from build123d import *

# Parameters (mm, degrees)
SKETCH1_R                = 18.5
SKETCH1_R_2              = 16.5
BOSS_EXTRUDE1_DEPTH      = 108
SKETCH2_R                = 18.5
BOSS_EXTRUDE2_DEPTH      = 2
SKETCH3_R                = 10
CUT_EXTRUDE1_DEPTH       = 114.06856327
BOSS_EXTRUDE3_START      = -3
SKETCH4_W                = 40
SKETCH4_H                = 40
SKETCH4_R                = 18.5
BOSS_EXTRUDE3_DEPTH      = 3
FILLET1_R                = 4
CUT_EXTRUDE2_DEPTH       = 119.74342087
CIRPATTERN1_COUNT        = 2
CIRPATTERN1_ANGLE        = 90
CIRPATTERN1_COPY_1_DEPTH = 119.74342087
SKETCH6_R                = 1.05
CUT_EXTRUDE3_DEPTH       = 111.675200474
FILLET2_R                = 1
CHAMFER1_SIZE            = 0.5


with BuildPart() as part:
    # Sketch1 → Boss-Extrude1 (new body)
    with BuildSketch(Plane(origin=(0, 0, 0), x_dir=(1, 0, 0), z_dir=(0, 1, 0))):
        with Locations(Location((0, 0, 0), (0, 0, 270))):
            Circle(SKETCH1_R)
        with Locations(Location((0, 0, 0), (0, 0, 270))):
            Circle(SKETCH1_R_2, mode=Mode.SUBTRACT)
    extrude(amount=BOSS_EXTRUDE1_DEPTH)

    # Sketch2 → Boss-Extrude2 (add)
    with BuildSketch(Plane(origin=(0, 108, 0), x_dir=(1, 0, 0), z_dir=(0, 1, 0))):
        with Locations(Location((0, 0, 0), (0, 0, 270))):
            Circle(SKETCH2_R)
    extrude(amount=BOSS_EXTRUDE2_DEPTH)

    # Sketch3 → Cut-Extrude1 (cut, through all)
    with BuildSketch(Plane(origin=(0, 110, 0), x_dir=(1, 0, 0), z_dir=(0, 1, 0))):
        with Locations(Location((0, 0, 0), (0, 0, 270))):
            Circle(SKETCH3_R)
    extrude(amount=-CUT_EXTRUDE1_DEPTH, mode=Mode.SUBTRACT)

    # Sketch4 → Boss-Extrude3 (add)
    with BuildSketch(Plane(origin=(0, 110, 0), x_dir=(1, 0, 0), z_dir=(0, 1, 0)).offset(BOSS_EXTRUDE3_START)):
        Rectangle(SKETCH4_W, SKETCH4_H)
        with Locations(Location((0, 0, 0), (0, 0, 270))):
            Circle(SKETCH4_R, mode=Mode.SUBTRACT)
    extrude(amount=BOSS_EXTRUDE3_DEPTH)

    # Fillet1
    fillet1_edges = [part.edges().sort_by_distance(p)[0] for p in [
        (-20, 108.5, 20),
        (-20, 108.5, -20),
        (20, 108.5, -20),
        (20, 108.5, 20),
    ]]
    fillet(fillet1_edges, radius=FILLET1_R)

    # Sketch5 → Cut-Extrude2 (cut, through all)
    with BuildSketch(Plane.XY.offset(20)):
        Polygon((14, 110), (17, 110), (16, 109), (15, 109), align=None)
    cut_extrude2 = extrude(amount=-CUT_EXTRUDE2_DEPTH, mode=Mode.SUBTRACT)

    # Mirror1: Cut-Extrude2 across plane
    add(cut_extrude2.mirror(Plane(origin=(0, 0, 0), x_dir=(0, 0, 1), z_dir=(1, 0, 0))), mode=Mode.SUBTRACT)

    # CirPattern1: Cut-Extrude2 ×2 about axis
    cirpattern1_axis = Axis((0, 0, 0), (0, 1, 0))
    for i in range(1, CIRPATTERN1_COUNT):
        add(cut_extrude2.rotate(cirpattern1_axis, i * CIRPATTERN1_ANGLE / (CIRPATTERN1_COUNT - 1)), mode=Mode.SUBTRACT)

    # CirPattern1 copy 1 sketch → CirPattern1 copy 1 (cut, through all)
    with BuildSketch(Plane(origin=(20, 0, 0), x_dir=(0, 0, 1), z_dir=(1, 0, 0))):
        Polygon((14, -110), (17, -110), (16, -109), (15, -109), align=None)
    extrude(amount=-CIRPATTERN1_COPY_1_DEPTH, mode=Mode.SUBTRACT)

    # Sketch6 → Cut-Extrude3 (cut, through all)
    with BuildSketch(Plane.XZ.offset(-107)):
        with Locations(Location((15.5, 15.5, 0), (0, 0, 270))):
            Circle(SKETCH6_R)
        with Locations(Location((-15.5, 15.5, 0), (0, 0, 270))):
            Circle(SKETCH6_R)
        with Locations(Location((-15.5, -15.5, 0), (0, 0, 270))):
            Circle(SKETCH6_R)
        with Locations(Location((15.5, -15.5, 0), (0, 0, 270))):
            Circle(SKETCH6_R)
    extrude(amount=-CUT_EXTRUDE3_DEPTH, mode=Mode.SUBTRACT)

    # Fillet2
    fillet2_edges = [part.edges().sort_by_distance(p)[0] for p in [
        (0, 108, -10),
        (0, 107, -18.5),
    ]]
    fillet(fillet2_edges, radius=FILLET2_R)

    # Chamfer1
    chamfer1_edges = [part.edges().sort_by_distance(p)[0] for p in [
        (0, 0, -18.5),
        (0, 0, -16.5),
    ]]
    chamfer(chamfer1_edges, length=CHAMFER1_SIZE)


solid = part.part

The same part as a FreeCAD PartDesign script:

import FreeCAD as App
import Part
import Sketcher
Q = App.Units.Quantity


def edges_at(feature, points):
    """Names of the edges that pass closest to the given points."""
    edges = feature.Shape.Edges
    near = lambda p: min(range(len(edges)), key=lambda i: edges[i].distToShape(Part.Vertex(*p))[0])
    return sorted({f"Edge{near(p) + 1}" for p in points})

doc = App.newDocument("Part")
body = doc.addObject("PartDesign::Body", "Body")

sketch1 = doc.addObject("Sketcher::SketchObject", "Sketch")
body.addObject(sketch1)
sketch1.AttachmentSupport = (doc.XZ_Plane, [""])
sketch1.MapMode = "FlatFace"
sketch1.addGeometry([
    Part.Circle(App.Vector(0, 0, 0), App.Vector(0, 0, 1), 18),
    Part.Circle(App.Vector(0, 0, 0), App.Vector(0, 0, 1), 16),
], False)
sketch1.addConstraint([
    Sketcher.Constraint("Coincident", 0, 3, -1, 1),
    Sketcher.Constraint("Coincident", 1, 3, -1, 1),
    Sketcher.Constraint("Diameter", 0, Q("37 mm")),
    Sketcher.Constraint("Diameter", 1, Q("33 mm")),
])
pad1 = doc.addObject("PartDesign::Pad", "Pad")
body.addObject(pad1)
pad1.Profile = sketch1
pad1.Length = 108
pad1.Reversed = True

sketch2 = doc.addObject("Sketcher::SketchObject", "Sketch001")
body.addObject(sketch2)
sketch2.AttachmentSupport = (doc.XZ_Plane, [""])
sketch2.MapMode = "FlatFace"
sketch2.AttachmentOffset = App.Placement(App.Vector(0, 0, -108), App.Rotation())
sketch2.addGeometry(Part.Circle(App.Vector(0, 0, 0), App.Vector(0, 0, 1), 18), False)
sketch2.addConstraint([
    Sketcher.Constraint("Coincident", 0, 3, -1, 1),
    Sketcher.Constraint("Diameter", 0, Q("37 mm")),
])
pad2 = doc.addObject("PartDesign::Pad", "Pad001")
body.addObject(pad2)
pad2.Profile = sketch2
pad2.Length = 2
pad2.Reversed = True

sketch3 = doc.addObject("Sketcher::SketchObject", "Sketch002")
body.addObject(sketch3)
sketch3.AttachmentSupport = (doc.XZ_Plane, [""])
sketch3.MapMode = "FlatFace"
sketch3.AttachmentOffset = App.Placement(App.Vector(0, 0, -110), App.Rotation())
sketch3.addGeometry(Part.Circle(App.Vector(0, 0, 0), App.Vector(0, 0, 1), 10), False)
sketch3.addConstraint([
    Sketcher.Constraint("Coincident", 0, 3, -1, 1),
    Sketcher.Constraint("Diameter", 0, Q("20 mm")),
])
pocket1 = doc.addObject("PartDesign::Pocket", "Pocket")
body.addObject(pocket1)
pocket1.Profile = sketch3
pocket1.Type = "ThroughAll"
pocket1.Reversed = True

sketch4 = doc.addObject("Sketcher::SketchObject", "Sketch003")
body.addObject(sketch4)
sketch4.AttachmentSupport = (doc.XZ_Plane, [""])
sketch4.MapMode = "FlatFace"
sketch4.AttachmentOffset = App.Placement(App.Vector(0, 0, -107), App.Rotation())
sketch4.addGeometry([
    Part.LineSegment(App.Vector(-20, -20, 0), App.Vector(-20, 20, 0)),
    Part.LineSegment(App.Vector(-20, 20, 0), App.Vector(20, 20, 0)),
    Part.LineSegment(App.Vector(20, 20, 0), App.Vector(20, -20, 0)),
    Part.LineSegment(App.Vector(20, -20, 0), App.Vector(-20, -20, 0)),
    Part.Circle(App.Vector(0, 0, 0), App.Vector(0, 0, 1), 18),
], False)
sketch4.addConstraint([
    Sketcher.Constraint("Coincident", 0, 2, 1, 1),
    Sketcher.Constraint("Coincident", 1, 2, 2, 1),
    Sketcher.Constraint("Coincident", 2, 2, 3, 1),
    Sketcher.Constraint("Coincident", 3, 2, 0, 1),
    Sketcher.Constraint("Vertical", 0),
    Sketcher.Constraint("Horizontal", 1),
    Sketcher.Constraint("Vertical", 2),
    Sketcher.Constraint("Horizontal", 3),
    Sketcher.Constraint("Coincident", 4, 3, -1, 1),
    Sketcher.Constraint("Symmetric", 0, 2, 2, 2, -1, 1),
    Sketcher.Constraint("Equal", 3, 0),
    Sketcher.Constraint("Diameter", 4, Q("37 mm")),
    Sketcher.Constraint("DistanceX", 1, 1, 1, 2, Q("40 mm")),
])
pad3 = doc.addObject("PartDesign::Pad", "Pad002")
body.addObject(pad3)
pad3.Profile = sketch4
pad3.Length = 3
pad3.Reversed = True
doc.recompute()

fillet = doc.addObject("PartDesign::Fillet", "Fillet")
body.addObject(fillet)
fillet.Base = (pad3, edges_at(pad3, [
    (-20, 108.5, 20),
    (-20, 108.5, -20),
    (20, 108.5, -20),
    (20, 108.5, 20),
]))
fillet.Radius = 4

sketch5 = doc.addObject("Sketcher::SketchObject", "Sketch004")
body.addObject(sketch5)
sketch5.AttachmentSupport = (doc.XY_Plane, [""])
sketch5.MapMode = "FlatFace"
sketch5.AttachmentOffset = App.Placement(App.Vector(0, 0, 20), App.Rotation())
sketch5.addGeometry([
    Part.LineSegment(App.Vector(17, 110, 0), App.Vector(14, 110, 0)),
    Part.LineSegment(App.Vector(14, 110, 0), App.Vector(15, 109, 0)),
    Part.LineSegment(App.Vector(15, 109, 0), App.Vector(16, 109, 0)),
    Part.LineSegment(App.Vector(16, 109, 0), App.Vector(17, 110, 0)),
], False)
sketch5.addConstraint([
    Sketcher.Constraint("Coincident", 0, 2, 1, 1),
    Sketcher.Constraint("Coincident", 1, 2, 2, 1),
    Sketcher.Constraint("Coincident", 2, 2, 3, 1),
    Sketcher.Constraint("Coincident", 3, 2, 0, 1),
    Sketcher.Constraint("Horizontal", 0),
    Sketcher.Constraint("Horizontal", 2),
    Sketcher.Constraint("Perpendicular", 1, 3),
    Sketcher.Constraint("Equal", 1, 3),
    Sketcher.Constraint("DistanceX", 0, 2, 0, 1, Q("3 mm")),
    Sketcher.Constraint("DistanceX", 2, 1, 2, 2, Q("1 mm")),
    Sketcher.Constraint("DistanceX", -1, 1, 0, 2, Q("14 mm")),
    Sketcher.Constraint("DistanceY", -1, 1, 0, 2, Q("110 mm")),
])
pocket2 = doc.addObject("PartDesign::Pocket", "Pocket001")
body.addObject(pocket2)
pocket2.Profile = sketch5
pocket2.Type = "ThroughAll"
doc.recompute()

mirrored = doc.addObject("PartDesign::Mirrored", "Mirrored")
body.addObject(mirrored)
mirrored.Originals = [pocket2]
mirrored.MirrorPlane = (doc.YZ_Plane, [""])
body.Tip = mirrored
doc.recompute()

polarpattern = doc.addObject("PartDesign::PolarPattern", "PolarPattern")
body.addObject(polarpattern)
polarpattern.Originals = [pocket2]
polarpattern.Axis = (doc.Y_Axis, [""])
polarpattern.Angle = 90
polarpattern.Occurrences = 2
body.Tip = polarpattern

sketch6 = doc.addObject("Sketcher::SketchObject", "Sketch005")
body.addObject(sketch6)
sketch6.AttachmentSupport = (doc.YZ_Plane, [""])
sketch6.MapMode = "FlatFace"
sketch6.AttachmentOffset = App.Placement(App.Vector(0, 0, 20), App.Rotation())
sketch6.addGeometry([
    Part.LineSegment(App.Vector(110, 14, 0), App.Vector(110, 17, 0)),
    Part.LineSegment(App.Vector(110, 17, 0), App.Vector(109, 16, 0)),
    Part.LineSegment(App.Vector(109, 16, 0), App.Vector(109, 15, 0)),
    Part.LineSegment(App.Vector(109, 15, 0), App.Vector(110, 14, 0)),
], False)
sketch6.addConstraint([
    Sketcher.Constraint("Coincident", 0, 2, 1, 1),
    Sketcher.Constraint("Coincident", 1, 2, 2, 1),
    Sketcher.Constraint("Coincident", 2, 2, 3, 1),
    Sketcher.Constraint("Coincident", 3, 2, 0, 1),
    Sketcher.Constraint("Vertical", 0),
    Sketcher.Constraint("Vertical", 2),
    Sketcher.Constraint("Perpendicular", 1, 3),
    Sketcher.Constraint("Equal", 1, 3),
    Sketcher.Constraint("DistanceY", 0, 1, 0, 2, Q("3 mm")),
    Sketcher.Constraint("DistanceY", 2, 2, 2, 1, Q("1 mm")),
    Sketcher.Constraint("DistanceX", -1, 1, 0, 2, Q("110 mm")),
    Sketcher.Constraint("DistanceY", -1, 1, 0, 2, Q("17 mm")),
])
pocket3 = doc.addObject("PartDesign::Pocket", "Pocket002")
body.addObject(pocket3)
pocket3.Profile = sketch6
pocket3.Type = "ThroughAll"

sketch7 = doc.addObject("Sketcher::SketchObject", "Sketch006")
body.addObject(sketch7)
sketch7.AttachmentSupport = (doc.XZ_Plane, [""])
sketch7.MapMode = "FlatFace"
sketch7.AttachmentOffset = App.Placement(App.Vector(0, 0, -107), App.Rotation())
sketch7.addGeometry([
    Part.Circle(App.Vector(15.5, 15.5, 0), App.Vector(0, 0, 1), 1.1),
    Part.Circle(App.Vector(-15.5, 15.5, 0), App.Vector(0, 0, 1), 1.1),
    Part.Circle(App.Vector(-15.5, -15.5, 0), App.Vector(0, 0, 1), 1.1),
    Part.Circle(App.Vector(15.5, -15.5, 0), App.Vector(0, 0, 1), 1.1),
], False)
sketch7.addConstraint([
    Sketcher.Constraint("Equal", 0, 1),
    Sketcher.Constraint("Equal", 1, 2),
    Sketcher.Constraint("Equal", 2, 3),
    Sketcher.Constraint("Symmetric", 0, 3, 2, 3, -1, 1),
    Sketcher.Constraint("Symmetric", 1, 3, 3, 3, -1, 1),
    Sketcher.Constraint("Symmetric", 0, 3, 1, 3, -2),
    Sketcher.Constraint("Diameter", 0, Q("2.1 mm")),
    Sketcher.Constraint("DistanceX", 1, 3, 0, 3, Q("31 mm")),
    Sketcher.Constraint("DistanceY", 2, 3, 1, 3, Q("31 mm")),
])
pocket4 = doc.addObject("PartDesign::Pocket", "Pocket003")
body.addObject(pocket4)
pocket4.Profile = sketch7
pocket4.Type = "ThroughAll"
doc.recompute()

fillet2 = doc.addObject("PartDesign::Fillet", "Fillet001")
body.addObject(fillet2)
fillet2.Base = (pocket4, edges_at(pocket4, [(0, 108, -10), (0, 107, -18.5)]))
fillet2.Radius = 1
doc.recompute()

chamfer = doc.addObject("PartDesign::Chamfer", "Chamfer")
body.addObject(chamfer)
chamfer.Base = (fillet2, edges_at(fillet2, [(0, 0, -18.5), (0, 0, -16.5)]))
chamfer.Size = 0.5

doc.recompute()
